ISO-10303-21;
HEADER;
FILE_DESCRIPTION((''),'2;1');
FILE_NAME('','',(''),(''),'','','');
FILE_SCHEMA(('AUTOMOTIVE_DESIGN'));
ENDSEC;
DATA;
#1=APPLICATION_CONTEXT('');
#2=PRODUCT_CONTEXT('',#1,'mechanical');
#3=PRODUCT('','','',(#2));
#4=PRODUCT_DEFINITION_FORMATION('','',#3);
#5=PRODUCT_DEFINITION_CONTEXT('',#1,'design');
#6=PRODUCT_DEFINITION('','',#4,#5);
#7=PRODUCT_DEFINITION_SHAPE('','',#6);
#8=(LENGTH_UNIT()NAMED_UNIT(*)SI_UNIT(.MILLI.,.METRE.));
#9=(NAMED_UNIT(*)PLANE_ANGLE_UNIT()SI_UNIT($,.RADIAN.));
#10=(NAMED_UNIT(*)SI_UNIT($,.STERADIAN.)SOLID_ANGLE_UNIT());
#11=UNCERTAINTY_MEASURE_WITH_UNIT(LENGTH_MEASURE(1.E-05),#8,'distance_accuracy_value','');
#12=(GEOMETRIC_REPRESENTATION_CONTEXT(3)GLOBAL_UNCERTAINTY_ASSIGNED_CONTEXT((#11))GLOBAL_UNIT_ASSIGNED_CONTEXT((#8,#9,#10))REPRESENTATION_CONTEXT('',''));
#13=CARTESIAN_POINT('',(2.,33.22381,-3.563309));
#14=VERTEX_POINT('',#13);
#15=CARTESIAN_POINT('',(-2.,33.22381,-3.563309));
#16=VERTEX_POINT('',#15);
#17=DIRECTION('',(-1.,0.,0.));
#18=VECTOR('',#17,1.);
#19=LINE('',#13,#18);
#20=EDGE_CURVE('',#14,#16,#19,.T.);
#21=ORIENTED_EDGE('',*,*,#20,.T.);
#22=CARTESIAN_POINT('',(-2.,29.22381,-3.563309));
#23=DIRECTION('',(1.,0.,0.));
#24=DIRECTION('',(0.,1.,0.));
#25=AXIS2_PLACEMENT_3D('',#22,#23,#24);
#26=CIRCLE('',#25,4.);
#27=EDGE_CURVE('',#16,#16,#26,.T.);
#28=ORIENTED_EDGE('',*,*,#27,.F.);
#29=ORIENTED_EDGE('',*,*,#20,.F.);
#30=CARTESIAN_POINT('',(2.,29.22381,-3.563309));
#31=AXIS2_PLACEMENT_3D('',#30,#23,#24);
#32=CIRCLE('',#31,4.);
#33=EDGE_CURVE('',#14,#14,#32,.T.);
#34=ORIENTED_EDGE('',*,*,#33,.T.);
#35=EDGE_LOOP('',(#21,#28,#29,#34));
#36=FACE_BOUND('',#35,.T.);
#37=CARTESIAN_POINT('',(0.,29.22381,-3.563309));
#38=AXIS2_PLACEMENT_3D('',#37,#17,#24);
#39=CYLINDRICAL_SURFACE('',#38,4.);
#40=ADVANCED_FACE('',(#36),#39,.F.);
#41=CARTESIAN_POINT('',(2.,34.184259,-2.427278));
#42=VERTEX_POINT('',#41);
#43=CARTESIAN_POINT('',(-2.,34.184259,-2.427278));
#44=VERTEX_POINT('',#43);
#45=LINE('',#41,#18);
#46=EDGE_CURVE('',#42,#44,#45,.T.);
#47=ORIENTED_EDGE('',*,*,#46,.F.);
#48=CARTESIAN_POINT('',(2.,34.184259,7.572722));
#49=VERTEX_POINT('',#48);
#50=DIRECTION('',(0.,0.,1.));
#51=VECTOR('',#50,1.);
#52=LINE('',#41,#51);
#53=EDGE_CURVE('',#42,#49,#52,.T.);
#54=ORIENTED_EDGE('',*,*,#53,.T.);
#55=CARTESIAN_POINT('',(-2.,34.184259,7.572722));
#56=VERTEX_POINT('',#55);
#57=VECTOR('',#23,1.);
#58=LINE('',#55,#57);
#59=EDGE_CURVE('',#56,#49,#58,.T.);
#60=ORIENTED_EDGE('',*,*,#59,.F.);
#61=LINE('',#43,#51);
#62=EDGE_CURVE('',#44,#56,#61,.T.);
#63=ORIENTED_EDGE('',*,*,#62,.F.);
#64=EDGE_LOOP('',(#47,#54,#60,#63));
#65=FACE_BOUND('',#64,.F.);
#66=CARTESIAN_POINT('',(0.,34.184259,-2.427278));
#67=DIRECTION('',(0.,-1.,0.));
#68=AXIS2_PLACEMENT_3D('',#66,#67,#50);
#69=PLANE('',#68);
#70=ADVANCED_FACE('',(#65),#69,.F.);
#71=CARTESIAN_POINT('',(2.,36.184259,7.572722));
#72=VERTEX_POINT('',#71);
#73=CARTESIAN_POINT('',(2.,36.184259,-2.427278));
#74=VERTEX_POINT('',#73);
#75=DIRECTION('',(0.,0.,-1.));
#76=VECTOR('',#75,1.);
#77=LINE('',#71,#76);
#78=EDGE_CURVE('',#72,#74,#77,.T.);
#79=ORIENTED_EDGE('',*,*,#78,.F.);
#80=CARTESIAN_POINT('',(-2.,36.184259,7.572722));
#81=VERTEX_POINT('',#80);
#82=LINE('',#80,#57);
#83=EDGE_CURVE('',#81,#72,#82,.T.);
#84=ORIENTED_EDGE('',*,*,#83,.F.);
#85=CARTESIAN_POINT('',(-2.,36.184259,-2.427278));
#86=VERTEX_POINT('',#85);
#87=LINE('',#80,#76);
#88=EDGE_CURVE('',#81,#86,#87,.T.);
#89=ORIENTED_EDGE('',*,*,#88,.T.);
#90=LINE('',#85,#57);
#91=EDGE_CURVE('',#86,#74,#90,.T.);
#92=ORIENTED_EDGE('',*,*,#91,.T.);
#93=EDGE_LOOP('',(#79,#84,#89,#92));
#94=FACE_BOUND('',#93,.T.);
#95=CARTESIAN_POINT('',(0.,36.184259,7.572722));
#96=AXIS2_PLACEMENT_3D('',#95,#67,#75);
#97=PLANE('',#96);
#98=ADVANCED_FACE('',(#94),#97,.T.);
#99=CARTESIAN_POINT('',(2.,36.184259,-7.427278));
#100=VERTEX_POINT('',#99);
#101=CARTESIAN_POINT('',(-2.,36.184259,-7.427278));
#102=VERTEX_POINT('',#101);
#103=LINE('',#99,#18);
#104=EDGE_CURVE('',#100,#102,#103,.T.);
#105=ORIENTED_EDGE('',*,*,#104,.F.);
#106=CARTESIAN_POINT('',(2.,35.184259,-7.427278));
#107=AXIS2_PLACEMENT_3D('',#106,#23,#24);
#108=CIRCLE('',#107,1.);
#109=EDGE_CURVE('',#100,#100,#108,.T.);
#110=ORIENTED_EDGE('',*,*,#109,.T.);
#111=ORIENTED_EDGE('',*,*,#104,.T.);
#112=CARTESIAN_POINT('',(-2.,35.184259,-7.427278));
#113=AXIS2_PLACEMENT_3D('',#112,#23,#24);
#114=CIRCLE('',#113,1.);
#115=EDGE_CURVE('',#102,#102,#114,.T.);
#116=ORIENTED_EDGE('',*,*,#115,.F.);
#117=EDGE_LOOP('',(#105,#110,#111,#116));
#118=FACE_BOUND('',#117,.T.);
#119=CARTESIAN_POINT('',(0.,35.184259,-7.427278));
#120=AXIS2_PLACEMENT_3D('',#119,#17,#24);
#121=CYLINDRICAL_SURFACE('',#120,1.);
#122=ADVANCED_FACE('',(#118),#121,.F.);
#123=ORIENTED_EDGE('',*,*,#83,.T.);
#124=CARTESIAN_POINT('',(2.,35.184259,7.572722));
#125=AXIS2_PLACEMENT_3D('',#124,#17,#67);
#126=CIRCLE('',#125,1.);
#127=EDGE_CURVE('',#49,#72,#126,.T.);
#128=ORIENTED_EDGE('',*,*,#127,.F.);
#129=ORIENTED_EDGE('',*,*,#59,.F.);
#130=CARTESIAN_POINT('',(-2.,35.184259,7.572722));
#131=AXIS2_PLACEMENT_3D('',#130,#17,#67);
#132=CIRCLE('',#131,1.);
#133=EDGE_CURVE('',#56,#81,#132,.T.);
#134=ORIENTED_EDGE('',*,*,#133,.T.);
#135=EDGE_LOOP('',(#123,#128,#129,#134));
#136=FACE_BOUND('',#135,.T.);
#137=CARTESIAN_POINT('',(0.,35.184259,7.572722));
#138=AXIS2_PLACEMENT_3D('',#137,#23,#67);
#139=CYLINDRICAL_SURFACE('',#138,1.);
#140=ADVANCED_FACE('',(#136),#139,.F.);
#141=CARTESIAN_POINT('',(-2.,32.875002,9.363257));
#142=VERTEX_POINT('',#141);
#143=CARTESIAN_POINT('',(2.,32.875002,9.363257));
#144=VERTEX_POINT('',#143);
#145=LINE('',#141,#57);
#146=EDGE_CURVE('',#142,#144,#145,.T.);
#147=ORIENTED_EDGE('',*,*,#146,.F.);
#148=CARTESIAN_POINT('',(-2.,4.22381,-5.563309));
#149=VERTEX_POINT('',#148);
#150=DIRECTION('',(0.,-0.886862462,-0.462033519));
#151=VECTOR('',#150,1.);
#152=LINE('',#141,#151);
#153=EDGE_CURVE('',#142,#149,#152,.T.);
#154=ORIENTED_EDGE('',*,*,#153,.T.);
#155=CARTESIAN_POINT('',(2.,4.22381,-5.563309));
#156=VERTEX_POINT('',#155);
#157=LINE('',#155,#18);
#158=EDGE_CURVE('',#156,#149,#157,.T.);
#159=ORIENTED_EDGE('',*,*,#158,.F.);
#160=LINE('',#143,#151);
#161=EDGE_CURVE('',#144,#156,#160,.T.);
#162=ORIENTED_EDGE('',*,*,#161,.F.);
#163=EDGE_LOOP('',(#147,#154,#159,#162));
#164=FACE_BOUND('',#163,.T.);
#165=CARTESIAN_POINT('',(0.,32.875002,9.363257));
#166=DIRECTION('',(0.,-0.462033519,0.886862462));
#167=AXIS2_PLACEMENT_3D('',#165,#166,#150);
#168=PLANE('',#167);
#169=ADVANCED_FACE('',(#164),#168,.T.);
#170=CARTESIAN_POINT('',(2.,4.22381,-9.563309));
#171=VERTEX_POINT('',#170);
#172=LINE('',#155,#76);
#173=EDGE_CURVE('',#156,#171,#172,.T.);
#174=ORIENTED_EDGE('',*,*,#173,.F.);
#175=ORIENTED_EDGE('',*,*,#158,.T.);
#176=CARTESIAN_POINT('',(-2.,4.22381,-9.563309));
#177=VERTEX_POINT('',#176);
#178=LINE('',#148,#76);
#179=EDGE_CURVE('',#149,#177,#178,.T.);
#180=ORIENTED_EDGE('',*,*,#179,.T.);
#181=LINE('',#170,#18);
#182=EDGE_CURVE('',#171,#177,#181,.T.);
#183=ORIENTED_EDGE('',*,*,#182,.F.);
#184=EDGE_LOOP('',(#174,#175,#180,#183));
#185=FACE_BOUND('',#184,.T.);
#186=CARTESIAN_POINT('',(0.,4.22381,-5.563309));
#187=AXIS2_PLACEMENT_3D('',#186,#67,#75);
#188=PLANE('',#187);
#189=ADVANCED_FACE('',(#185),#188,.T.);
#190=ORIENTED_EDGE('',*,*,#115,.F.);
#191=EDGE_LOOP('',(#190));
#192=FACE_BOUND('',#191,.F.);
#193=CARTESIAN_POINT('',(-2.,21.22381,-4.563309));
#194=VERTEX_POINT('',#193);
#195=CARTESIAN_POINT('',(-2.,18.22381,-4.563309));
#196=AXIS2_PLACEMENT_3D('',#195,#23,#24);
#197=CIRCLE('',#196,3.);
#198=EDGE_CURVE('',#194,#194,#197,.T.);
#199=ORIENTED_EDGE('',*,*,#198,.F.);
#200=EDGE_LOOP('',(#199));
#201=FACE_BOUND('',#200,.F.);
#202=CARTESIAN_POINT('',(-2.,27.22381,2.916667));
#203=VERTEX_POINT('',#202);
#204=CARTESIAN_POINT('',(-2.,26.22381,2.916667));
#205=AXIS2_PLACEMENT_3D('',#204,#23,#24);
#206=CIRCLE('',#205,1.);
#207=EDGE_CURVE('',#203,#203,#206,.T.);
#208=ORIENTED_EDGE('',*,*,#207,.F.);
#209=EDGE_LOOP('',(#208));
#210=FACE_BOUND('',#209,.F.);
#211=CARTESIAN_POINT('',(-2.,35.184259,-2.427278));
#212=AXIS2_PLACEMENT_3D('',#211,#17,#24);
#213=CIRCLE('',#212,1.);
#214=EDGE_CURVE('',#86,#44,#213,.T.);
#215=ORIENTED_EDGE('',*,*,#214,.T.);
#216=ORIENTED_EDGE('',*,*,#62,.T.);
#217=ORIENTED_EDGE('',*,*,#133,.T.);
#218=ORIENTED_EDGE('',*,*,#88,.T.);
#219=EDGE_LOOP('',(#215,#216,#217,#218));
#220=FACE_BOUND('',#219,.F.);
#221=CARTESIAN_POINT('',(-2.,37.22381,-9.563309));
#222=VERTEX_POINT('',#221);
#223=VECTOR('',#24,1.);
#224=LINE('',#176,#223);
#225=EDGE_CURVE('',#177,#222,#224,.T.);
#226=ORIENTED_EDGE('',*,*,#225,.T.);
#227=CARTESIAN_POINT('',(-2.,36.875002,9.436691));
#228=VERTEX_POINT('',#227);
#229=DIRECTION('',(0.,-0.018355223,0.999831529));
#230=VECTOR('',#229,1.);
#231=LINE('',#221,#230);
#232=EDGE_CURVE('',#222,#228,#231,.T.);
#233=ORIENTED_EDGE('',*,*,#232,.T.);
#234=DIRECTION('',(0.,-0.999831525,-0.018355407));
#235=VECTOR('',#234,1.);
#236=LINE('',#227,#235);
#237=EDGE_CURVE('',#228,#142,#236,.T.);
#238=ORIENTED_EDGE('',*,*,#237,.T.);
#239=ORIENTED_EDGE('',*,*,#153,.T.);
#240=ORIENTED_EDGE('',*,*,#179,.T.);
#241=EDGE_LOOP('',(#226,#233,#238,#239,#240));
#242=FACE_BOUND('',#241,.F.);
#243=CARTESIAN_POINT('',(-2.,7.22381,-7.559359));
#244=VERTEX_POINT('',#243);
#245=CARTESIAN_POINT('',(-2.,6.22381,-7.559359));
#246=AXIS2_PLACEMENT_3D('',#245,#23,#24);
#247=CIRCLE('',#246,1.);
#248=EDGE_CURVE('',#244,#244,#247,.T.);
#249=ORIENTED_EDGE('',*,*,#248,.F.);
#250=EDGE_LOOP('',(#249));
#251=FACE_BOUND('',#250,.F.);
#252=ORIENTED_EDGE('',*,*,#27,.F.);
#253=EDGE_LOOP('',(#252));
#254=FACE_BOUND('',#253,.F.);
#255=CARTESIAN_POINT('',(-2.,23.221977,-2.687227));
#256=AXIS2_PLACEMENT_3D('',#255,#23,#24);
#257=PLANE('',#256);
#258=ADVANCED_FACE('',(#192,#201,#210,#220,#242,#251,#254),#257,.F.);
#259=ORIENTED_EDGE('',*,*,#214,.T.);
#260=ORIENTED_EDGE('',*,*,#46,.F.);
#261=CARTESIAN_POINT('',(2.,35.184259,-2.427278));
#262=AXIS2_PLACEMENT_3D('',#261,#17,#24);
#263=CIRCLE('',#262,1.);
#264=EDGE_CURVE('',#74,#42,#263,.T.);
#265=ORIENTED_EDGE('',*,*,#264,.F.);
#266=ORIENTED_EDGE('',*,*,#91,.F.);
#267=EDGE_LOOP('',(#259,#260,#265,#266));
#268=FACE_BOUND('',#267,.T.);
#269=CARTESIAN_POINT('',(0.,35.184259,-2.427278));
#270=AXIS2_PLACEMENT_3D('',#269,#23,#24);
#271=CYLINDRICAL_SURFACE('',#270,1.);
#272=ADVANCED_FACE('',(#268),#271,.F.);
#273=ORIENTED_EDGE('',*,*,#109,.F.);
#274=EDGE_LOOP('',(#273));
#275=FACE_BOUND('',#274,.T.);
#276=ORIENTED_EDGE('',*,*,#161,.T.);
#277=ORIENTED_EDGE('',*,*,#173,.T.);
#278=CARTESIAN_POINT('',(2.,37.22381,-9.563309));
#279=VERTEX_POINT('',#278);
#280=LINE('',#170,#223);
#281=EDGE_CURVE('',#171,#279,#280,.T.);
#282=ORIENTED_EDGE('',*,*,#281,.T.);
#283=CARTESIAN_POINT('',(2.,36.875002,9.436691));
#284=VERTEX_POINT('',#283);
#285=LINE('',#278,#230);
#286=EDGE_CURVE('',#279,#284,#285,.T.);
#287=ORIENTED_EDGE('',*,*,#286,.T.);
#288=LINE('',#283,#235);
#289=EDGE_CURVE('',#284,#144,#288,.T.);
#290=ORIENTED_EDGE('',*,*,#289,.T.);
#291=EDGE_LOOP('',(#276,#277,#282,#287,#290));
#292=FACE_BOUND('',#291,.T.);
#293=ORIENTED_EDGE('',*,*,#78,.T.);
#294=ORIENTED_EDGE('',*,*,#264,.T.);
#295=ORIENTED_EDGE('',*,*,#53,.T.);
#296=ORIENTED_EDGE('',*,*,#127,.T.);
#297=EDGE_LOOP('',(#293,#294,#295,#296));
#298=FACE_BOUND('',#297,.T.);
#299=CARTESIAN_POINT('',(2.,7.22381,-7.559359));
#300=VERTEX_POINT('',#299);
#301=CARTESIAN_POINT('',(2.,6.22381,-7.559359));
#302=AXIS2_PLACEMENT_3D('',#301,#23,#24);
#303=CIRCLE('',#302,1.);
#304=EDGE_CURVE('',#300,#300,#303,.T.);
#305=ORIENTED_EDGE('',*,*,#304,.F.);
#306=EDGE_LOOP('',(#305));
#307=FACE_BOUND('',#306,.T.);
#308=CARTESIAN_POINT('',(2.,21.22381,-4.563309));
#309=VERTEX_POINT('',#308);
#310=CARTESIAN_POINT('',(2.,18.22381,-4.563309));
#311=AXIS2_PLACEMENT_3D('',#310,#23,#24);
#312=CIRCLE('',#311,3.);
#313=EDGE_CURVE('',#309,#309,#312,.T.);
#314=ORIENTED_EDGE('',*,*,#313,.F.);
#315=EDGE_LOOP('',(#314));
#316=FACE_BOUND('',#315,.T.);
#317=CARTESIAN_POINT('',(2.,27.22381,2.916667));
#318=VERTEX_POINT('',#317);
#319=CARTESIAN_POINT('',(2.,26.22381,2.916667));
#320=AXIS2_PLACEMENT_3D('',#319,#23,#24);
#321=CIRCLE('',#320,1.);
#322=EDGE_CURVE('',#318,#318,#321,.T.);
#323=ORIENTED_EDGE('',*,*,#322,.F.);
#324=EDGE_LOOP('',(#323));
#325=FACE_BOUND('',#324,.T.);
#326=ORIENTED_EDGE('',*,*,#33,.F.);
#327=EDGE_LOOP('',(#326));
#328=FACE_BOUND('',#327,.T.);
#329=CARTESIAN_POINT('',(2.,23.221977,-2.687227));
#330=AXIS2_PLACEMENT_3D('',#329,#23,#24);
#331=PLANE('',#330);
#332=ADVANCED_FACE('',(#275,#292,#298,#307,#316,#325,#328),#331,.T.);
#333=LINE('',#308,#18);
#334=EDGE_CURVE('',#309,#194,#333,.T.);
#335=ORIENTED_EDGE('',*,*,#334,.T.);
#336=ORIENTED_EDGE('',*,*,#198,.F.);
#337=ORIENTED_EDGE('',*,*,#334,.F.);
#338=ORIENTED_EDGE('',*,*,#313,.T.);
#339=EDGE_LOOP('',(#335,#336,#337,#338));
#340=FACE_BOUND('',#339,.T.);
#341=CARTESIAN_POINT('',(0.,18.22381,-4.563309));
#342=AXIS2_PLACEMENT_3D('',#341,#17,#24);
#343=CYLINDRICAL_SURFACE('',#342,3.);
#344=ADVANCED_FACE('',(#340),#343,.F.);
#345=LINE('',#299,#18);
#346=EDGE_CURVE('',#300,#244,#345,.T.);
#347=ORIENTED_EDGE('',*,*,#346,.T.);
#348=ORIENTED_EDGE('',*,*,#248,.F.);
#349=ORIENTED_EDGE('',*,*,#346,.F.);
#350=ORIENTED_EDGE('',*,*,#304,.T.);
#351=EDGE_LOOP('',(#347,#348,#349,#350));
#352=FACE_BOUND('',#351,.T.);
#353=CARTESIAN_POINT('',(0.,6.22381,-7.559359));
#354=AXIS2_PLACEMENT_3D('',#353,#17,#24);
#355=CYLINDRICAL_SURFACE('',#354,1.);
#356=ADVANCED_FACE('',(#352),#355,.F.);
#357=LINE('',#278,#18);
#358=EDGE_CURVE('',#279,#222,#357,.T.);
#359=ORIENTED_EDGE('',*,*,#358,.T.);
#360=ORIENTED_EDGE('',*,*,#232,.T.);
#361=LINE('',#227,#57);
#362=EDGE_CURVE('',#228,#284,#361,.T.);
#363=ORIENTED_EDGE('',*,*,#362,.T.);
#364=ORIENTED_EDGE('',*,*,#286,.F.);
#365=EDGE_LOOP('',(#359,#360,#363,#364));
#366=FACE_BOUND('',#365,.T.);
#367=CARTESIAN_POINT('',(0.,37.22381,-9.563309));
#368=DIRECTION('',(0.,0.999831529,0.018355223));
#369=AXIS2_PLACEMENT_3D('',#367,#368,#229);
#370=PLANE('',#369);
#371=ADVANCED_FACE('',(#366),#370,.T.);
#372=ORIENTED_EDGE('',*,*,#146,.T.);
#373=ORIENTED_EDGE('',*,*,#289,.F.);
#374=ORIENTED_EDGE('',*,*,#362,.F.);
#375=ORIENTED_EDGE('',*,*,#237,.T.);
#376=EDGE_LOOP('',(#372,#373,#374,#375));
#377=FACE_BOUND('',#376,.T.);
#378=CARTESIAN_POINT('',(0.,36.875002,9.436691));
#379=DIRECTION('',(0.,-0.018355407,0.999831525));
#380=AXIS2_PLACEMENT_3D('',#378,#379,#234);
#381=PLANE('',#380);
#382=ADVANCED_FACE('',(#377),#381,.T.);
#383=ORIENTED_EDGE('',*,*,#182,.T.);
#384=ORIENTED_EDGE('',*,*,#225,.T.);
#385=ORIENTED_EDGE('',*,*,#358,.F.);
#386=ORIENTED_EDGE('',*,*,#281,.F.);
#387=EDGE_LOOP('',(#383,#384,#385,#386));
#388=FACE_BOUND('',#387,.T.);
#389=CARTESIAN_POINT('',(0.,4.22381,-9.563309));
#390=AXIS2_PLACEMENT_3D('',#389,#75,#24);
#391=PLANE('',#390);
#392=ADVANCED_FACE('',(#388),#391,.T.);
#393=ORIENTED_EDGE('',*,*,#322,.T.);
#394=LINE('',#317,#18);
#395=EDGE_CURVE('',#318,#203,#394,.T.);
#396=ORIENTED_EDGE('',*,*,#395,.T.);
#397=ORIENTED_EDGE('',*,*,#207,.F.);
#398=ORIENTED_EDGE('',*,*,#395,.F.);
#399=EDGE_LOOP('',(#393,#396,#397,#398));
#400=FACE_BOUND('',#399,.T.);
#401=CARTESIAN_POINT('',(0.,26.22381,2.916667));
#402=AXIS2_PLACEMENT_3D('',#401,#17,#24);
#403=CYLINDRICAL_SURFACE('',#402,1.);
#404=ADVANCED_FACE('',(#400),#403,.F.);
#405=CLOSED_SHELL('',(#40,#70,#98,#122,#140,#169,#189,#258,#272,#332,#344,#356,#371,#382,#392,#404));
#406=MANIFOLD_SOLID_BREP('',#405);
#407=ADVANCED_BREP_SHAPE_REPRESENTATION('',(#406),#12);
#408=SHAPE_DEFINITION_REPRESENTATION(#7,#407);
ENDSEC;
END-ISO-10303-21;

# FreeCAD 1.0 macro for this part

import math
import FreeCAD as App
import Part
import Sketcher
from FreeCAD import Vector


def add_polygon(sketch, points):
    """Adds a closed chain of lines whose ends are joined by coincident constraints."""
    first, n = sketch.GeometryCount, len(points)
    for a, b in zip(points, points[1:] + points[:1]):
        sketch.addGeometry(Part.LineSegment(App.Vector(*a, 0), App.Vector(*b, 0)), False)
    for i in range(n):
        sketch.addConstraint(Sketcher.Constraint("Coincident", first + i, 2, first + (i + 1) % n, 1))

doc = App.newDocument("Part")
params = doc.addObject("Spreadsheet::Sheet", "Params")
for row, (alias, value) in enumerate([
    ("sketch1_diameter", "2 mm"),
    ("sketch1_diameter2", "6 mm"),
    ("sketch1_diameter3", "8 mm"),
    ("sketch1_width", "33 mm"),
    ("sketch1_height", "4 mm"),
    ("pad1_length", "4 mm"),
], start=1):
    params.set(f"A{row}", alias)
    params.set(f"B{row}", "=" + value)
    params.setAlias(f"B{row}", alias)

body = doc.addObject("PartDesign::Body", "Body")

sketch1 = doc.addObject("Sketcher::SketchObject", "Sketch")
body.addObject(sketch1)
sketch1.AttachmentSupport = (doc.YZ_Plane, [""])
sketch1.MapMode = "FlatFace"
add_polygon(sketch1, [(37.22381, -9.563309), (36.875002, 9.436691), (32.875002, 9.363257), (4.22381, -5.563309), (4.22381, -9.563309)])
sketch1.addGeometry(Part.Circle(Vector(6.22381, -7.559359, 0), Vector(0, 0, 1), 1), False)
sketch1.addGeometry(Part.Circle(Vector(18.22381, -4.563309, 0), Vector(0, 0, 1), 3), False)
sketch1.addGeometry(Part.Circle(Vector(35.184259, -7.427278, 0), Vector(0, 0, 1), 1), False)
sketch1.addGeometry(Part.Circle(Vector(29.22381, -3.563309, 0), Vector(0, 0, 1), 4), False)
sketch1.addGeometry(Part.Circle(Vector(26.22381, 2.916667, 0), Vector(0, 0, 1), 1), False)
sketch1.addGeometry(Part.ArcOfCircle(Part.Circle(Vector(35.184259, -2.427278, 0), Vector(0, 0, 1), 1), math.radians(180), math.radians(360)), False)
sketch1.addGeometry(Part.LineSegment(Vector(34.184259, -2.427278, 0), Vector(34.184259, 7.572722, 0)), False)
sketch1.addGeometry(Part.ArcOfCircle(Part.Circle(Vector(35.184259, 7.572722, 0), Vector(0, 0, 1), 1), math.radians(0), math.radians(180)), False)
sketch1.addGeometry(Part.LineSegment(Vector(36.184259, 7.572722, 0), Vector(36.184259, -2.427278, 0)), False)
sketch1.addConstraint([
    Sketcher.Constraint("Tangent", 10, 1, 11, 1),
    Sketcher.Constraint("Tangent", 11, 2, 12, 2),
    Sketcher.Constraint("Tangent", 12, 1, 13, 1),
    Sketcher.Constraint("Tangent", 13, 2, 10, 2),
    Sketcher.Constraint("Vertical", 3),
    Sketcher.Constraint("Horizontal", 4),
    Sketcher.Constraint("Vertical", 11),
    Sketcher.Constraint("Vertical", 13),
    Sketcher.Constraint("Equal", 5, 7),
    Sketcher.Constraint("Equal", 7, 9),
    Sketcher.Constraint("Equal", 9, 10),
    Sketcher.Constraint("Perpendicular", 0, 1),
    Sketcher.Constraint("Vertical", 7, 3, 10, 3),
    Sketcher.Constraint("Diameter", 5, 2.0),
    Sketcher.Constraint("Diameter", 6, 6.0),
    Sketcher.Constraint("Diameter", 8, 8.0),
    Sketcher.Constraint("DistanceX", 4, 1, 4, 2, 33.0),
    Sketcher.Constraint("DistanceY", 3, 2, 3, 1, 4.0),
    Sketcher.Constraint("DistanceY", 11, 1, 11, 2, 10.0),
    Sketcher.Constraint("DistanceX", 5, 3, 6, 3, 12.0),
    Sketcher.Constraint("DistanceX", 6, 3, 8, 3, 11.0),
    Sketcher.Constraint("DistanceY", 6, 3, 8, 3, 1.0),
    Sketcher.Constraint("DistanceX", 9, 3, 8, 3, 3.0),
    Sketcher.Constraint("DistanceY", 7, 3, 10, 3, 5.0),
    Sketcher.Constraint("DistanceY", 8, 3, 0, 2, 13.0),
    Sketcher.Constraint("DistanceX", 1, 2, 0, 2, 4.0),
    Sketcher.Constraint("DistanceX", 2, 2, 5, 3, 2.0),
    Sketcher.Constraint("DistanceY", 2, 2, 6, 3, 1.0),
    Sketcher.Constraint("Distance", 0, 19.003201),
    Sketcher.Constraint("DistanceX", -1, 1, 5, 3, 6.22381),
    Sketcher.Constraint("DistanceY", 5, 3, -1, 1, 7.559359),
    Sketcher.Constraint("DistanceY", 6, 3, -1, 1, 4.563309),
    Sketcher.Constraint("DistanceX", -1, 1, 7, 3, 35.184259),
    Sketcher.Constraint("DistanceY", 7, 3, -1, 1, 7.427278),
    Sketcher.Constraint("DistanceY", 9, 3, 1, 2, 6.44659),
])
sketch1.setExpression("Constraints[18]", "Params.sketch1_diameter")
sketch1.setExpression("Constraints[19]", "Params.sketch1_diameter2")
sketch1.setExpression("Constraints[20]", "Params.sketch1_diameter3")
sketch1.setExpression("Constraints[21]", "Params.sketch1_width")
sketch1.setExpression("Constraints[22]", "Params.sketch1_height")
pad1 = doc.addObject("PartDesign::Pad", "Pad")
body.addObject(pad1)
pad1.Profile = sketch1
pad1.setExpression("Length", "Params.pad1_length")
pad1.Midplane = True

doc.recompute()
